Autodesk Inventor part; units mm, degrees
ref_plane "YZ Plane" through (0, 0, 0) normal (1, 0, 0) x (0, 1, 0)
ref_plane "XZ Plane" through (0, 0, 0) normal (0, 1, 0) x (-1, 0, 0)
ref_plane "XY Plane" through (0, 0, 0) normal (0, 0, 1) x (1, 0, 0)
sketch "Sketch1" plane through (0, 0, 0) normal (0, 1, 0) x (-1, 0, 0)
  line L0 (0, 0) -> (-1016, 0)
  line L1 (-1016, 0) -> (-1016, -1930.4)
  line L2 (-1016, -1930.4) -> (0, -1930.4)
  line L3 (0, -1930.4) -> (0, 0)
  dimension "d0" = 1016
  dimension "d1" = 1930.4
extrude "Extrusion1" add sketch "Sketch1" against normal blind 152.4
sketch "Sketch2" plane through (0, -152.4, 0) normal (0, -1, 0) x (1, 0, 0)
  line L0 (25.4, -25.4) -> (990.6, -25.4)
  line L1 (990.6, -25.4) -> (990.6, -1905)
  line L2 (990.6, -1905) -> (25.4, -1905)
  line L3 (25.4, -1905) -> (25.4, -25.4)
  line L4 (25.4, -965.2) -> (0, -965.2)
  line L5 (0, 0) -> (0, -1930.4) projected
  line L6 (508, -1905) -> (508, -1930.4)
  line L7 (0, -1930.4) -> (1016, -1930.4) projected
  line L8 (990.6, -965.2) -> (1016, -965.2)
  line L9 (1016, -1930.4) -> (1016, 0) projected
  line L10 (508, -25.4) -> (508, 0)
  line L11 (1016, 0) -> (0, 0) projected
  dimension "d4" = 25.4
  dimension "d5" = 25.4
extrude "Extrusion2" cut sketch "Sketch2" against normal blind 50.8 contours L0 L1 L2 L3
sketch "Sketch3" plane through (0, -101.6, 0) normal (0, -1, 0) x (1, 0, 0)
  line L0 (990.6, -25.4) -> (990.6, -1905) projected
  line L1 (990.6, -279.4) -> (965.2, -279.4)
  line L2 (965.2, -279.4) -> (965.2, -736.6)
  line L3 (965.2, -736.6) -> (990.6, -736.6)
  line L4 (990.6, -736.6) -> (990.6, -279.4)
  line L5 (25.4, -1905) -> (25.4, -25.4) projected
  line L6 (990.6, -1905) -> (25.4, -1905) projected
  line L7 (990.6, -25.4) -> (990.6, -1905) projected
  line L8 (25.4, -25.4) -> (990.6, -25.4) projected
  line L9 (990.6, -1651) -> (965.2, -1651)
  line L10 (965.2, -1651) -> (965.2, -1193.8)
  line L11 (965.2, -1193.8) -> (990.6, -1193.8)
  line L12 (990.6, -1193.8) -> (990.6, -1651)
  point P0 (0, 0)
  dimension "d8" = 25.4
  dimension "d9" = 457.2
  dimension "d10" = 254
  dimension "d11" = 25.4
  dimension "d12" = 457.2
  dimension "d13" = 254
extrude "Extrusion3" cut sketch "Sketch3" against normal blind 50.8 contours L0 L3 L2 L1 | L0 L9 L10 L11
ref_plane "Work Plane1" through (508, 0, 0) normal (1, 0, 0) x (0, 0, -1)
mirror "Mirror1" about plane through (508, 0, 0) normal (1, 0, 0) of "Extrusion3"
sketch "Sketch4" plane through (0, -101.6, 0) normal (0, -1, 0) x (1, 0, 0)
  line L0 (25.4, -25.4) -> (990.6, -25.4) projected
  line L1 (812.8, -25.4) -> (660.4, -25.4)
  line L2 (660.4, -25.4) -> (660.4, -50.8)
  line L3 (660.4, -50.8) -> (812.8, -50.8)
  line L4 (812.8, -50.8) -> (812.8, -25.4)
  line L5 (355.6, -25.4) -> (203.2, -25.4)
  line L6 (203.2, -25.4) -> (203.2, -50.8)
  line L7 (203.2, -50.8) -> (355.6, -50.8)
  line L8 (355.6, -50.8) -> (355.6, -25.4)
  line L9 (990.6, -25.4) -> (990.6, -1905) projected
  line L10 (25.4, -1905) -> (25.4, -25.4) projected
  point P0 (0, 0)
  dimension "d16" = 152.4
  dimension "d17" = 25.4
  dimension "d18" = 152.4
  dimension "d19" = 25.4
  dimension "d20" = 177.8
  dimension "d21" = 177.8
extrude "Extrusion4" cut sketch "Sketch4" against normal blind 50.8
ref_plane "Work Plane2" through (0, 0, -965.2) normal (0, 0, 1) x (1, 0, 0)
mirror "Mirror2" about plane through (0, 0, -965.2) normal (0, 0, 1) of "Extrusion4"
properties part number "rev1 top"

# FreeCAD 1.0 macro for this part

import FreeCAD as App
import Part
import Sketcher
from FreeCAD import Vector
Q = App.Units.Quantity

doc = App.newDocument("Part")
body = doc.addObject("PartDesign::Body", "Body")

sketch1 = doc.addObject("Sketcher::SketchObject", "Sketch")
body.addObject(sketch1)
sketch1.AttachmentSupport = (doc.XZ_Plane, [""])
sketch1.MapMode = "FlatFace"
sketch1.addGeometry([
    Part.LineSegment(Vector(0, -1930, 0), Vector(0, 0, 0)),
    Part.LineSegment(Vector(0, 0, 0), Vector(1016, 0, 0)),
    Part.LineSegment(Vector(1016, 0, 0), Vector(1016, -1930, 0)),
    Part.LineSegment(Vector(1016, -1930, 0), Vector(0, -1930, 0)),
], False)
sketch1.addConstraint([
    Sketcher.Constraint("Coincident", 0, 2, 1, 1),
    Sketcher.Constraint("Coincident", 1, 2, 2, 1),
    Sketcher.Constraint("Coincident", 2, 2, 3, 1),
    Sketcher.Constraint("Coincident", 3, 2, 0, 1),
    Sketcher.Constraint("Vertical", 0),
    Sketcher.Constraint("Horizontal", 1),
    Sketcher.Constraint("Vertical", 2),
    Sketcher.Constraint("Horizontal", 3),
    Sketcher.Constraint("Coincident", 0, 2, -1, 1),
    Sketcher.Constraint("DistanceX", 1, 1, 1, 2, Q("40 in")),
    Sketcher.Constraint("DistanceY", 0, 1, 0, 2, Q("76 in")),
])
pad1 = doc.addObject("PartDesign::Pad", "Pad")
body.addObject(pad1)
pad1.Profile = sketch1
pad1.Length = Q("6 in")

sketch2 = doc.addObject("Sketcher::SketchObject", "Sketch001")
body.addObject(sketch2)
sketch2.AttachmentSupport = (doc.XZ_Plane, [""])
sketch2.MapMode = "FlatFace"
sketch2.AttachmentOffset = App.Placement(Vector(0, 0, 6 * 25.4), App.Rotation())
sketch2.addGeometry([
    Part.LineSegment(Vector(991, -25, 0), Vector(25, -25, 0)),
    Part.LineSegment(Vector(25, -25, 0), Vector(25, -1905, 0)),
    Part.LineSegment(Vector(25, -1905, 0), Vector(991, -1905, 0)),
    Part.LineSegment(Vector(991, -1905, 0), Vector(991, -25, 0)),
], False)
sketch2.addConstraint([
    Sketcher.Constraint("Coincident", 0, 2, 1, 1),
    Sketcher.Constraint("Coincident", 1, 2, 2, 1),
    Sketcher.Constraint("Coincident", 2, 2, 3, 1),
    Sketcher.Constraint("Coincident", 3, 2, 0, 1),
    Sketcher.Constraint("Horizontal", 0),
    Sketcher.Constraint("Vertical", 1),
    Sketcher.Constraint("Horizontal", 2),
    Sketcher.Constraint("Vertical", 3),
    Sketcher.Constraint("DistanceX", -1, 1, 0, 2, Q("1 in")),
    Sketcher.Constraint("DistanceY", 0, 2, -1, 1, Q("1 in")),
    Sketcher.Constraint("DistanceX", 0, 2, 0, 1, Q("38 in")),
    Sketcher.Constraint("DistanceY", 1, 2, 1, 1, Q("74 in")),
])
pocket1 = doc.addObject("PartDesign::Pocket", "Pocket")
body.addObject(pocket1)
pocket1.Profile = sketch2
pocket1.Length = Q("2 in")

sketch3 = doc.addObject("Sketcher::SketchObject", "Sketch002")
body.addObject(sketch3)
sketch3.AttachmentSupport = (doc.XZ_Plane, [""])
sketch3.MapMode = "FlatFace"
sketch3.AttachmentOffset = App.Placement(Vector(0, 0, 4 * 25.4), App.Rotation())
sketch3.addGeometry([
    Part.LineSegment(Vector(991, -737, 0), Vector(991, -279, 0)),
    Part.LineSegment(Vector(991, -279, 0), Vector(965, -279, 0)),
    Part.LineSegment(Vector(965, -279, 0), Vector(965, -737, 0)),
    Part.LineSegment(Vector(965, -737, 0), Vector(991, -737, 0)),
    Part.LineSegment(Vector(991, -1651, 0), Vector(991, -1194, 0)),
    Part.LineSegment(Vector(991, -1194, 0), Vector(965, -1194, 0)),
    Part.LineSegment(Vector(965, -1194, 0), Vector(965, -1651, 0)),
    Part.LineSegment(Vector(965, -1651, 0), Vector(991, -1651, 0)),
], False)
sketch3.addConstraint([
    Sketcher.Constraint("Coincident", 0, 2, 1, 1),
    Sketcher.Constraint("Coincident", 1, 2, 2, 1),
    Sketcher.Constraint("Coincident", 2, 2, 3, 1),
    Sketcher.Constraint("Coincident", 3, 2, 0, 1),
    Sketcher.Constraint("Coincident", 4, 2, 5, 1),
    Sketcher.Constraint("Coincident", 5, 2, 6, 1),
    Sketcher.Constraint("Coincident", 6, 2, 7, 1),
    Sketcher.Constraint("Coincident", 7, 2, 4, 1),
    Sketcher.Constraint("Vertical", 0),
    Sketcher.Constraint("Horizontal", 1),
    Sketcher.Constraint("Vertical", 2),
    Sketcher.Constraint("Horizontal", 3),
    Sketcher.Constraint("Vertical", 4),
    Sketcher.Constraint("Horizontal", 5),
    Sketcher.Constraint("Vertical", 6),
    Sketcher.Constraint("Horizontal", 7),
    Sketcher.Constraint("Vertical", 3, 2, 4, 2),
    Sketcher.Constraint("Vertical", 2, 2, 5, 2),
    Sketcher.Constraint("Equal", 2, 4),
    Sketcher.Constraint("DistanceX", 1, 2, 1, 1, Q("1 in")),
    Sketcher.Constraint("DistanceY", 0, 1, 0, 2, Q("18 in")),
    Sketcher.Constraint("DistanceY", 4, 2, 3, 2, Q("18 in")),
    Sketcher.Constraint("DistanceX", -1, 1, 0, 2, Q("39 in")),
    Sketcher.Constraint("DistanceY", 0, 2, -1, 1, Q("11 in")),
])
pocket2 = doc.addObject("PartDesign::Pocket", "Pocket001")
body.addObject(pocket2)
pocket2.Profile = sketch3
pocket2.Length = Q("2 in")
doc.recompute()

datumplane = doc.addObject("PartDesign::Plane", "DatumPlane")
body.addObject(datumplane)
datumplane.AttachmentSupport = (doc.YZ_Plane, [""])
datumplane.MapMode = "FlatFace"
datumplane.AttachmentOffset = App.Placement(Vector(0, 0, 20 * 25.4), App.Rotation())
mirrored = doc.addObject("PartDesign::Mirrored", "Mirrored")
body.addObject(mirrored)
mirrored.Originals = [pocket2]
mirrored.MirrorPlane = (datumplane, [""])
body.Tip = mirrored

sketch4 = doc.addObject("Sketcher::SketchObject", "Sketch003")
body.addObject(sketch4)
sketch4.AttachmentSupport = (doc.XZ_Plane, [""])
sketch4.MapMode = "FlatFace"
sketch4.AttachmentOffset = App.Placement(Vector(0, 0, 4 * 25.4), App.Rotation())
sketch4.addGeometry([
    Part.LineSegment(Vector(813, -25, 0), Vector(660, -25, 0)),
    Part.LineSegment(Vector(660, -25, 0), Vector(660, -51, 0)),
    Part.LineSegment(Vector(660, -51, 0), Vector(813, -51, 0)),
    Part.LineSegment(Vector(813, -51, 0), Vector(813, -25, 0)),
    Part.LineSegment(Vector(356, -25, 0), Vector(203, -25, 0)),
    Part.LineSegment(Vector(203, -25, 0), Vector(203, -51, 0)),
    Part.LineSegment(Vector(203, -51, 0), Vector(356, -51, 0)),
    Part.LineSegment(Vector(356, -51, 0), Vector(356, -25, 0)),
], False)
sketch4.addConstraint([
    Sketcher.Constraint("Coincident", 0, 2, 1, 1),
    Sketcher.Constraint("Coincident", 1, 2, 2, 1),
    Sketcher.Constraint("Coincident", 2, 2, 3, 1),
    Sketcher.Constraint("Coincident", 3, 2, 0, 1),
    Sketcher.Constraint("Coincident", 4, 2, 5, 1),
    Sketcher.Constraint("Coincident", 5, 2, 6, 1),
    Sketcher.Constraint("Coincident", 6, 2, 7, 1),
    Sketcher.Constraint("Coincident", 7, 2, 4, 1),
    Sketcher.Constraint("Horizontal", 0),
    Sketcher.Constraint("Vertical", 1),
    Sketcher.Constraint("Horizontal", 2),
    Sketcher.Constraint("Vertical", 3),
    Sketcher.Constraint("Horizontal", 4),
    Sketcher.Constraint("Vertical", 5),
    Sketcher.Constraint("Horizontal", 6),
    Sketcher.Constraint("Vertical", 7),
    Sketcher.Constraint("Horizontal", 3, 2, 4, 2),
    Sketcher.Constraint("Horizontal", 2, 2, 5, 2),
    Sketcher.Constraint("Equal", 2, 4),
    Sketcher.Constraint("DistanceX", 0, 2, 0, 1, Q("6 in")),
    Sketcher.Constraint("DistanceY", 1, 2, 1, 1, Q("1 in")),
    Sketcher.Constraint("DistanceY", 0, 2, -1, 1, Q("1 in")),
    Sketcher.Constraint("DistanceX", -1, 1, 0, 2, Q("26 in")),
    Sketcher.Constraint("DistanceX", -1, 1, 4, 2, Q("8 in")),
])
pocket3 = doc.addObject("PartDesign::Pocket", "Pocket002")
body.addObject(pocket3)
pocket3.Profile = sketch4
pocket3.Length = Q("2 in")
doc.recompute()

datumplane2 = doc.addObject("PartDesign::Plane", "DatumPlane001")
body.addObject(datumplane2)
datumplane2.AttachmentSupport = (doc.XY_Plane, [""])
datumplane2.MapMode = "FlatFace"
datumplane2.AttachmentOffset = App.Placement(Vector(0, 0, -38 * 25.4), App.Rotation())
mirrored2 = doc.addObject("PartDesign::Mirrored", "Mirrored001")
body.addObject(mirrored2)
mirrored2.Originals = [pocket3]
mirrored2.MirrorPlane = (datumplane2, [""])
body.Tip = mirrored2

doc.recompute()
